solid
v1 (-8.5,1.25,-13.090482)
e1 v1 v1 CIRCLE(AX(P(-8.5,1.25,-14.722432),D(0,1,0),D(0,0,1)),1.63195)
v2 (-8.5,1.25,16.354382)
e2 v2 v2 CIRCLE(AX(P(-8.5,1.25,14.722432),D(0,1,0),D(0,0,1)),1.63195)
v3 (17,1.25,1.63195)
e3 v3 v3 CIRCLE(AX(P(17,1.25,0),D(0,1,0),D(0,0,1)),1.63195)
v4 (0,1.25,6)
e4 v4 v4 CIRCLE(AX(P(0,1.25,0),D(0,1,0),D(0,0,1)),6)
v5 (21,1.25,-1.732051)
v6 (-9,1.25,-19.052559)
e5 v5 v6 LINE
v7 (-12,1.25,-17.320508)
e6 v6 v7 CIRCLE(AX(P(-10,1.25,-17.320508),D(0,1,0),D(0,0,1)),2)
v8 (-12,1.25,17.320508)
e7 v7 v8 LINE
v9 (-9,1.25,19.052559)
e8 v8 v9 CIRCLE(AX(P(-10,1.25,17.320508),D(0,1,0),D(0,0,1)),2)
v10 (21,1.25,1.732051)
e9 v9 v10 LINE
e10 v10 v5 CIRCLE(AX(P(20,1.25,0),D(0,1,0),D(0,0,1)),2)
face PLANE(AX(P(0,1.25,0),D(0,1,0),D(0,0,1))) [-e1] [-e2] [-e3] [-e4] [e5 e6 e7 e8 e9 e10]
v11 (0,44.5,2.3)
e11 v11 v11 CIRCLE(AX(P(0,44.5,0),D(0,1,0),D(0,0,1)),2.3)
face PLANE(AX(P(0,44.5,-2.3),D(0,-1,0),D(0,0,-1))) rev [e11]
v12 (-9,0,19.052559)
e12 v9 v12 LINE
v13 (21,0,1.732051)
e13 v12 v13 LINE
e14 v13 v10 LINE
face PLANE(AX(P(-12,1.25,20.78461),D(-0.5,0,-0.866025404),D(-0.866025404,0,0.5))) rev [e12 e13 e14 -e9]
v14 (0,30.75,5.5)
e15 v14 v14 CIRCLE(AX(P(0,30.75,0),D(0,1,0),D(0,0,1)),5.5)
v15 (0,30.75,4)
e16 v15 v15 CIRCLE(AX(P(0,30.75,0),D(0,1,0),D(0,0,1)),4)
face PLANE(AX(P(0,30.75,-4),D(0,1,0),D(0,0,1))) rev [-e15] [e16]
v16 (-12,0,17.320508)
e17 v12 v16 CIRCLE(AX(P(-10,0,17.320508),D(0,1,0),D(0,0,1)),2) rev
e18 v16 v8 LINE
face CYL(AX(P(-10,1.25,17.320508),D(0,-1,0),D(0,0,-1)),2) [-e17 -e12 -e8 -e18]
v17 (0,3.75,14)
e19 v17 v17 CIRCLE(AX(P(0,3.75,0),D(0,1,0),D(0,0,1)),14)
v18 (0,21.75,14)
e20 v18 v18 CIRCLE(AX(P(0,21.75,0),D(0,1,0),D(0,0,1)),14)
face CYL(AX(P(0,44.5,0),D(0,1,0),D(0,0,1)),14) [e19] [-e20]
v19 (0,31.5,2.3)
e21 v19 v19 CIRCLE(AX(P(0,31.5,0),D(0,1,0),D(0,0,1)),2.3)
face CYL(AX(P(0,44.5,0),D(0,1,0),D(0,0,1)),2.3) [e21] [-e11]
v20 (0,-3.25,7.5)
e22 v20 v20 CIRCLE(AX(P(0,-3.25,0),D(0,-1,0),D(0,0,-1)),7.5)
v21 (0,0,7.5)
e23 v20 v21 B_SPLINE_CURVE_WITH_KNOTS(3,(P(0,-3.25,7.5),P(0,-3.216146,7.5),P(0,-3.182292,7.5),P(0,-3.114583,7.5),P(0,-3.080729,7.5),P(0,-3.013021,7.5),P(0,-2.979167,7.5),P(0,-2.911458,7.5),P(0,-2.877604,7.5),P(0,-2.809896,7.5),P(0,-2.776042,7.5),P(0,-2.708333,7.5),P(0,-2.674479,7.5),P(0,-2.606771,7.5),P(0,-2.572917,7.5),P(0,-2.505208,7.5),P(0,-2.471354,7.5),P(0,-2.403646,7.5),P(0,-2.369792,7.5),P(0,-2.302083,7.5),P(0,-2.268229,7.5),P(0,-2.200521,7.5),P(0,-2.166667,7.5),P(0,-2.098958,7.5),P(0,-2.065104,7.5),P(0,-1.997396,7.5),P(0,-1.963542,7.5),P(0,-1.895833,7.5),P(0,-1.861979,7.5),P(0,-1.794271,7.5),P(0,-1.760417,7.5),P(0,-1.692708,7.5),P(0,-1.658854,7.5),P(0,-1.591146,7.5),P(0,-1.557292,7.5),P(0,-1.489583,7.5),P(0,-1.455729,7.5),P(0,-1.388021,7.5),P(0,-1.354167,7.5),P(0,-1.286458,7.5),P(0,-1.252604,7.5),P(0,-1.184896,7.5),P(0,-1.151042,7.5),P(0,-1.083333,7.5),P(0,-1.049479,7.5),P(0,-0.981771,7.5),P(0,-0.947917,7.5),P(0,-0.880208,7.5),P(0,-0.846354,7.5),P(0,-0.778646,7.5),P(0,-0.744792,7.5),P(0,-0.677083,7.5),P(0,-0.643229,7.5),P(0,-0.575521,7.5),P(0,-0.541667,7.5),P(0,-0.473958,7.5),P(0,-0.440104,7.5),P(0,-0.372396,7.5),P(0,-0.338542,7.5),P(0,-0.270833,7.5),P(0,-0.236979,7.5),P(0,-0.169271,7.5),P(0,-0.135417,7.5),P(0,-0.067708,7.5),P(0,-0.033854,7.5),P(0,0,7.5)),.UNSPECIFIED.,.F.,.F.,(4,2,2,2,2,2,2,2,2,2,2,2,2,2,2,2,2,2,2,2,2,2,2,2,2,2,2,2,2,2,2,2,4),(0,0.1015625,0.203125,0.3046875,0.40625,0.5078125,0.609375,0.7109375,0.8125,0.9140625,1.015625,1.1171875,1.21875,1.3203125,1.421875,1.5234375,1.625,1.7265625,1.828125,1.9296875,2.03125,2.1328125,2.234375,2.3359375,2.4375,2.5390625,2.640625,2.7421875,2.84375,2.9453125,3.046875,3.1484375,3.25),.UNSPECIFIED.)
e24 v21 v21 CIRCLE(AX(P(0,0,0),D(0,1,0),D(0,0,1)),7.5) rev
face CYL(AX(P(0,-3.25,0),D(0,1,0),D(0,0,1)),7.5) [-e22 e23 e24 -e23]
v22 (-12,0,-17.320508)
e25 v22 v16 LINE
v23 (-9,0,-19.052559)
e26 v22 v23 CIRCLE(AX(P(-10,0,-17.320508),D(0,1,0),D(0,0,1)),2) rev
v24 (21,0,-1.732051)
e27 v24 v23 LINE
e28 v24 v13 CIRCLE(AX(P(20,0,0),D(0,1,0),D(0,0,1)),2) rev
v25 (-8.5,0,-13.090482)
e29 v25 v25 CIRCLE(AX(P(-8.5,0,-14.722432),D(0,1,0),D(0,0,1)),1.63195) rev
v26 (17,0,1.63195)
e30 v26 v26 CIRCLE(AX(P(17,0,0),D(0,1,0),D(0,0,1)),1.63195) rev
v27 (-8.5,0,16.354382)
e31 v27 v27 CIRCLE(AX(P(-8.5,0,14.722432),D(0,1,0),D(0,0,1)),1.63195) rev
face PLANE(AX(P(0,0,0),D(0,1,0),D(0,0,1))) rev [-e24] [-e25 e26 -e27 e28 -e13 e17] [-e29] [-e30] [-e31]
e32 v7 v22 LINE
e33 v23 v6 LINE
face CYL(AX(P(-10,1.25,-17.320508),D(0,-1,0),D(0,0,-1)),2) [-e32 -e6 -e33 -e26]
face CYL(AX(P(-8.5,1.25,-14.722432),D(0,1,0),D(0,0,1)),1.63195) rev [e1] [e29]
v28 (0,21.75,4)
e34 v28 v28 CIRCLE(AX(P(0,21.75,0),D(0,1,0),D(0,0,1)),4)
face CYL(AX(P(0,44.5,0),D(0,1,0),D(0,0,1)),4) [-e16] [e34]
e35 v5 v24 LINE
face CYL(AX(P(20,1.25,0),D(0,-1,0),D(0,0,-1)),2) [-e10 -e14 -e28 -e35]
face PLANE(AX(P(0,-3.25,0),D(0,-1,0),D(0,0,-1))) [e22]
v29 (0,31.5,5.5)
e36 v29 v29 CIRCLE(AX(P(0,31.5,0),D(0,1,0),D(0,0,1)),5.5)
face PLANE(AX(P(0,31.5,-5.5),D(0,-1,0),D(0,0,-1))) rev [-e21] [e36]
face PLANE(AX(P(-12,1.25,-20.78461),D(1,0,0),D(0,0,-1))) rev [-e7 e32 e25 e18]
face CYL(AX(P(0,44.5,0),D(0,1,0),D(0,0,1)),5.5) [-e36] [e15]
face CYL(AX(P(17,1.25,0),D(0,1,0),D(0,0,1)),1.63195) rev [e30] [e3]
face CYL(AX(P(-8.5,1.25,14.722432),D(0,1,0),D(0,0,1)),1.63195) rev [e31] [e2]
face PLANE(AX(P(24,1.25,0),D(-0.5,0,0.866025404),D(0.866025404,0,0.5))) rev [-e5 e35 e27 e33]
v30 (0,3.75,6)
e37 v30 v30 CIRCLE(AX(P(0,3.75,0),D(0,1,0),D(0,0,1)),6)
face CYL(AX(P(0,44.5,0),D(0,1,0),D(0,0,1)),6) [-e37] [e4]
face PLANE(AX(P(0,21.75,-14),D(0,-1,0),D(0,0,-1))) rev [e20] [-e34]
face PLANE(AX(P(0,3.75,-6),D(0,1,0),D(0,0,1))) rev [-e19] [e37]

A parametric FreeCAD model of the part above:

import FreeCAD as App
import Part
import Sketcher
from FreeCAD import Vector
Q = App.Units.Quantity


def edges_at(feature, points):
    """Names of the edges that pass closest to the given points."""
    edges = feature.Shape.Edges
    near = lambda p: min(range(len(edges)), key=lambda i: edges[i].distToShape(Part.Vertex(*p))[0])
    return sorted({f"Edge{near(p) + 1}" for p in points})

doc = App.newDocument("Part")
params = doc.addObject("Spreadsheet::Sheet", "Params")
for row, (alias, value) in enumerate([
    ("pad1_length", "1.25 mm"),
    ("hole_diameter", "3.2639 mm"),
    ("sketch3_width", "18 mm"),
    ("sketch3_width2", "9 mm"),
    ("sketch3_width3", "13 mm"),
    ("sketch3_height", "6 mm"),
    ("sketch3_height2", "8 mm"),
    ("revolution_angle", "360 deg"),
    ("sketch4_diameter", "15 mm"),
    ("pad2_length", "3.25 mm"),
    ("fillet_radius", "2 mm"),
], start=1):
    params.set(f"A{row}", alias)
    params.set(f"B{row}", "=" + value)
    params.setAlias(f"B{row}", alias)

body = doc.addObject("PartDesign::Body", "Body")

# Sketch on XZ plane
sketch1 = body.newObject("Sketcher::SketchObject", "Sketch")
sketch1.AttachmentSupport = (doc.getObject("XZ_Plane"), [""])
sketch1.MapMode = "FlatFace"
sketch1.addGeometry(Part.LineSegment(Vector(24, 0, 0), Vector(-12, -20.78461, 0)), False)
sketch1.addGeometry(Part.LineSegment(Vector(-12, -20.78461, 0), Vector(-12, 20.78461, 0)), False)
sketch1.addGeometry(Part.LineSegment(Vector(-12, 20.78461, 0), Vector(24, 0, 0)), False)
sketch1.addConstraint(Sketcher.Constraint("Coincident", 0, 2, 1, 1))
sketch1.addConstraint(Sketcher.Constraint("Coincident", 1, 2, 2, 1))
sketch1.addConstraint(Sketcher.Constraint("Coincident", 2, 2, 0, 1))
sketch1.addConstraint(Sketcher.Constraint("Vertical", 1))
sketch1.addConstraint(Sketcher.Constraint("PointOnObject", 2, 2, -1))
sketch1.addConstraint(Sketcher.Constraint("Equal", 0, 2))
sketch1.addConstraint(Sketcher.Constraint("Angle", 0, Q("-150 deg")))
sketch1.addConstraint(Sketcher.Constraint("DistanceX", 0, 2, -1, 1, Q("12 mm")))
sketch1.addConstraint(Sketcher.Constraint("DistanceX", -1, 1, 2, 2, Q("24 mm")))
pad1 = body.newObject("PartDesign::Pad", "Pad")
pad1.Profile = sketch1
pad1.setExpression("Length", "Params.pad1_length")
pad1.Reversed = True

# Sketch on XZ plane
sketch2 = body.newObject("Sketcher::SketchObject", "Sketch001")
sketch2.AttachmentSupport = (doc.getObject("XZ_Plane"), [""])
sketch2.MapMode = "FlatFace"
sketch2.AttachmentOffset = App.Placement(Vector(0, 0, -1.25), App.Rotation())
sketch2.addGeometry(Part.Circle(Vector(-8.5, -14.722432, 0), Vector(0, 0, 1), 1.63195), False)
sketch2.addGeometry(Part.Circle(Vector(-8.5, 14.722432, 0), Vector(0, 0, 1), 1.63195), False)
sketch2.addGeometry(Part.Circle(Vector(17, 0, 0), Vector(0, 0, 1), 1.63195), False)
sketch2.addConstraint(Sketcher.Constraint("Equal", 0, 1))
sketch2.addConstraint(Sketcher.Constraint("Equal", 1, 2))
sketch2.addConstraint(Sketcher.Constraint("Symmetric", 0, 3, 1, 3, -1))
sketch2.addConstraint(Sketcher.Constraint("PointOnObject", 2, 3, -1))
sketch2.addConstraint(Sketcher.Constraint("DistanceX", -1, 1, 2, 3, Q("17 mm")))
sketch2.addConstraint(Sketcher.Constraint("Diameter", 0, Q("3.2639 mm")))
sketch2.addConstraint(Sketcher.Constraint("DistanceX", 0, 3, -1, 1, Q("8.5 mm")))
sketch2.addConstraint(Sketcher.Constraint("DistanceY", 0, 3, -1, 1, Q("14.722432 mm")))
doc.recompute()
hole = body.newObject("PartDesign::Hole", "Hole")
hole.Profile = sketch2
hole.ThreadType = "None"
hole.setExpression("Diameter", "Params.hole_diameter")
hole.DepthType = "ThroughAll"
hole.Reversed = True

# Sketch on YZ plane
sketch3 = body.newObject("Sketcher::SketchObject", "Sketch002")
sketch3.AttachmentSupport = (doc.getObject("YZ_Plane"), [""])
sketch3.MapMode = "FlatFace"
sketch3.addGeometry(Part.LineSegment(Vector(1.25, 0, 0), Vector(1.25, -6, 0)), False)
sketch3.addGeometry(Part.LineSegment(Vector(1.25, -6, 0), Vector(3.75, -6, 0)), False)
sketch3.addGeometry(Part.LineSegment(Vector(3.75, -6, 0), Vector(3.75, -14, 0)), False)
sketch3.addGeometry(Part.LineSegment(Vector(3.75, -14, 0), Vector(21.75, -14, 0)), False)
sketch3.addGeometry(Part.LineSegment(Vector(21.75, -14, 0), Vector(21.75, -4, 0)), False)
sketch3.addGeometry(Part.LineSegment(Vector(21.75, -4, 0), Vector(30.75, -4, 0)), False)
sketch3.addGeometry(Part.LineSegment(Vector(30.75, -4, 0), Vector(30.75, -5.5, 0)), False)
sketch3.addGeometry(Part.LineSegment(Vector(30.75, -5.5, 0), Vector(31.5, -5.5, 0)), False)
sketch3.addGeometry(Part.LineSegment(Vector(31.5, -5.5, 0), Vector(31.5, -2.3, 0)), False)
sketch3.addGeometry(Part.LineSegment(Vector(31.5, -2.3, 0), Vector(44.5, -2.3, 0)), False)
sketch3.addGeometry(Part.LineSegment(Vector(44.5, -2.3, 0), Vector(44.5, 0, 0)), False)
sketch3.addGeometry(Part.LineSegment(Vector(44.5, 0, 0), Vector(1.25, 0, 0)), False)
sketch3.addConstraint(Sketcher.Constraint("Coincident", 0, 2, 1, 1))
sketch3.addConstraint(Sketcher.Constraint("Coincident", 1, 2, 2, 1))
sketch3.addConstraint(Sketcher.Constraint("Coincident", 2, 2, 3, 1))
sketch3.addConstraint(Sketcher.Constraint("Coincident", 3, 2, 4, 1))
sketch3.addConstraint(Sketcher.Constraint("Coincident", 4, 2, 5, 1))
sketch3.addConstraint(Sketcher.Constraint("Coincident", 5, 2, 6, 1))
sketch3.addConstraint(Sketcher.Constraint("Coincident", 6, 2, 7, 1))
sketch3.addConstraint(Sketcher.Constraint("Coincident", 7, 2, 8, 1))
sketch3.addConstraint(Sketcher.Constraint("Coincident", 8, 2, 9, 1))
sketch3.addConstraint(Sketcher.Constraint("Coincident", 9, 2, 10, 1))
sketch3.addConstraint(Sketcher.Constraint("Coincident", 10, 2, 11, 1))
sketch3.addConstraint(Sketcher.Constraint("Coincident", 11, 2, 0, 1))
sketch3.addConstraint(Sketcher.Constraint("Vertical", 0))
sketch3.addConstraint(Sketcher.Constraint("Horizontal", 1))
sketch3.addConstraint(Sketcher.Constraint("Vertical", 2))
sketch3.addConstraint(Sketcher.Constraint("Horizontal", 3))
sketch3.addConstraint(Sketcher.Constraint("Vertical", 4))
sketch3.addConstraint(Sketcher.Constraint("Horizontal", 5))
sketch3.addConstraint(Sketcher.Constraint("Vertical", 6))
sketch3.addConstraint(Sketcher.Constraint("Horizontal", 7))
sketch3.addConstraint(Sketcher.Constraint("Vertical", 8))
sketch3.addConstraint(Sketcher.Constraint("Horizontal", 9))
sketch3.addConstraint(Sketcher.Constraint("Vertical", 10))
sketch3.addConstraint(Sketcher.Constraint("Horizontal", 11))
sketch3.addConstraint(Sketcher.Constraint("PointOnObject", 10, 2, -1))
sketch3.addConstraint(Sketcher.Constraint("DistanceX", 3, 1, 3, 2, Q("18 mm")))
sketch3.addConstraint(Sketcher.Constraint("DistanceX", 5, 1, 5, 2, Q("9 mm")))
sketch3.addConstraint(Sketcher.Constraint("DistanceX", 9, 1, 9, 2, Q("13 mm")))
sketch3.addConstraint(Sketcher.Constraint("DistanceY", 0, 2, 0, 1, Q("6 mm")))
sketch3.addConstraint(Sketcher.Constraint("DistanceY", 2, 2, 2, 1, Q("8 mm")))
sketch3.addConstraint(Sketcher.Constraint("DistanceY", 4, 1, 4, 2, Q("10 mm")))
sketch3.addConstraint(Sketcher.Constraint("DistanceX", 1, 1, 1, 2, Q("2.5 mm")))
sketch3.addConstraint(Sketcher.Constraint("DistanceY", 6, 2, 6, 1, Q("1.5 mm")))
sketch3.addConstraint(Sketcher.Constraint("DistanceY", 8, 1, 8, 2, Q("3.2 mm")))
sketch3.addConstraint(Sketcher.Constraint("DistanceX", 7, 1, 7, 2, Q("0.75 mm")))
sketch3.addConstraint(Sketcher.Constraint("DistanceX", -1, 1, 7, 2, Q("31.5 mm")))
sketch3.setExpression("Constraints[25]", "Params.sketch3_width")
sketch3.setExpression("Constraints[26]", "Params.sketch3_width2")
sketch3.setExpression("Constraints[27]", "Params.sketch3_width3")
sketch3.setExpression("Constraints[28]", "Params.sketch3_height")
sketch3.setExpression("Constraints[29]", "Params.sketch3_height2")
revolution = body.newObject("PartDesign::Revolution", "Revolution")
revolution.Profile = sketch3
revolution.ReferenceAxis = (sketch3, ["H_Axis"])
revolution.setExpression("Angle", "Params.revolution_angle")

# Sketch on XZ plane
sketch4 = body.newObject("Sketcher::SketchObject", "Sketch003")
sketch4.AttachmentSupport = (doc.getObject("XZ_Plane"), [""])
sketch4.MapMode = "FlatFace"
sketch4.addGeometry(Part.Circle(Vector(0, 0, 0), Vector(0, 0, 1), 7.5), False)
sketch4.addConstraint(Sketcher.Constraint("Coincident", 0, 3, -1, 1))
sketch4.addConstraint(Sketcher.Constraint("Diameter", 0, Q("15 mm")))
sketch4.setExpression("Constraints[1]", "Params.sketch4_diameter")
pad2 = body.newObject("PartDesign::Pad", "Pad001")
pad2.Profile = sketch4
pad2.setExpression("Length", "Params.pad2_length")
doc.recompute()

fillet = body.newObject("PartDesign::Fillet", "Fillet")
fillet.Base = (pad2, edges_at(pad2, [(-12, 0.625, 20.785), (-12, 0.625, -20.785), (24, 0.625, 0)]))
fillet.setExpression("Radius", "Params.fillet_radius")

doc.recompute()
